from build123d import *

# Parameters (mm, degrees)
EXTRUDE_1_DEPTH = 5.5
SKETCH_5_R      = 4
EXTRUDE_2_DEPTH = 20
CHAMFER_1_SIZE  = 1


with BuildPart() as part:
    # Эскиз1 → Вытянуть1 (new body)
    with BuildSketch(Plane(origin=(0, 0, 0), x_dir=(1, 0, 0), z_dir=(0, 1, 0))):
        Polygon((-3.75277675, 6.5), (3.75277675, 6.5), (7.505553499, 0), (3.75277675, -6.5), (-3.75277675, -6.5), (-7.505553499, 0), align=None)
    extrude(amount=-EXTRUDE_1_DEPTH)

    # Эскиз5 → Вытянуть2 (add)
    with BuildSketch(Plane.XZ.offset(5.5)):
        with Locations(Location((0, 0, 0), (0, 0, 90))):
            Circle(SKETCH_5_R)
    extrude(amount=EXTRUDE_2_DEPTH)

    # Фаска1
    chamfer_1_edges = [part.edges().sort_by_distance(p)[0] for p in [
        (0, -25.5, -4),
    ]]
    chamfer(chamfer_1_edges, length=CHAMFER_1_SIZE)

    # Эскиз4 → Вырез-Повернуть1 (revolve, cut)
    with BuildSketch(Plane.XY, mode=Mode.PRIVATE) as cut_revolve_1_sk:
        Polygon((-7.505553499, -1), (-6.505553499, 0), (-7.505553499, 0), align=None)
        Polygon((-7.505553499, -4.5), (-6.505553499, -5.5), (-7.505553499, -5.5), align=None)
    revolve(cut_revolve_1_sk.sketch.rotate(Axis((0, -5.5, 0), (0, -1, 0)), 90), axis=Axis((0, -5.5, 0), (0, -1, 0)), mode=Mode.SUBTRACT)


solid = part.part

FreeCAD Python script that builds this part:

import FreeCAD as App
import Part
import Sketcher
Q = App.Units.Quantity


def edges_at(feature, points):
    """Names of the edges that pass closest to the given points."""
    edges = feature.Shape.Edges
    near = lambda p: min(range(len(edges)), key=lambda i: edges[i].distToShape(Part.Vertex(*p))[0])
    return sorted({f"Edge{near(p) + 1}" for p in points})

doc = App.newDocument("Part")
body = doc.addObject("PartDesign::Body", "Body")

sketch1 = body.newObject("Sketcher::SketchObject", "Sketch")
sketch1.AttachmentSupport = (doc.getObject("XZ_Plane"), [""])
sketch1.MapMode = "FlatFace"
sketch1.addGeometry(Part.LineSegment(App.Vector(3.752777, -6.5, 0), App.Vector(-3.752777, -6.5, 0)), False)
sketch1.addGeometry(Part.LineSegment(App.Vector(-3.752777, -6.5, 0), App.Vector(-7.505553, 0, 0)), False)
sketch1.addGeometry(Part.LineSegment(App.Vector(-7.505553, 0, 0), App.Vector(-3.752777, 6.5, 0)), False)
sketch1.addGeometry(Part.LineSegment(App.Vector(-3.752777, 6.5, 0), App.Vector(3.752777, 6.5, 0)), False)
sketch1.addGeometry(Part.LineSegment(App.Vector(3.752777, 6.5, 0), App.Vector(7.505553, 0, 0)), False)
sketch1.addGeometry(Part.LineSegment(App.Vector(7.505553, 0, 0), App.Vector(3.752777, -6.5, 0)), False)
sketch1.addConstraint(Sketcher.Constraint("Coincident", 0, 2, 1, 1))
sketch1.addConstraint(Sketcher.Constraint("Coincident", 1, 2, 2, 1))
sketch1.addConstraint(Sketcher.Constraint("Coincident", 2, 2, 3, 1))
sketch1.addConstraint(Sketcher.Constraint("Coincident", 3, 2, 4, 1))
sketch1.addConstraint(Sketcher.Constraint("Coincident", 4, 2, 5, 1))
sketch1.addConstraint(Sketcher.Constraint("Coincident", 5, 2, 0, 1))
sketch1.addConstraint(Sketcher.Constraint("Horizontal", 0))
sketch1.addConstraint(Sketcher.Constraint("Horizontal", 3))
sketch1.addConstraint(Sketcher.Constraint("Symmetric", 0, 2, 3, 2, -1, 1))
sketch1.addConstraint(Sketcher.Constraint("Symmetric", 1, 2, 4, 2, -1, 1))
sketch1.addConstraint(Sketcher.Constraint("PointOnObject", 1, 2, -1))
sketch1.addConstraint(Sketcher.Constraint("Parallel", 2, 5))
sketch1.addConstraint(Sketcher.Constraint("Vertical", 0, 2, 2, 2))
sketch1.addConstraint(Sketcher.Constraint("Angle", 1, Q("120 deg")))
sketch1.addConstraint(Sketcher.Constraint("DistanceY", 0, 2, 2, 2, Q("13 mm")))
sketch1.addConstraint(Sketcher.Constraint("DistanceX", 0, 2, 0, 1, Q("7.505554 mm")))
pad1 = body.newObject("PartDesign::Pad", "Pad")
pad1.Profile = sketch1
pad1.Length = 5.5

sketch2 = body.newObject("Sketcher::SketchObject", "Sketch001")
sketch2.AttachmentSupport = (doc.getObject("XZ_Plane"), [""])
sketch2.MapMode = "FlatFace"
sketch2.AttachmentOffset = App.Placement(App.Vector(0, 0, 5.5), App.Rotation())
sketch2.addGeometry(Part.Circle(App.Vector(0, 0, 0), App.Vector(0, 0, 1), 4), False)
sketch2.addConstraint(Sketcher.Constraint("Coincident", 0, 3, -1, 1))
sketch2.addConstraint(Sketcher.Constraint("Diameter", 0, Q("8 mm")))
pad2 = body.newObject("PartDesign::Pad", "Pad001")
pad2.Profile = sketch2
pad2.Length = 20
doc.recompute()

chamfer = body.newObject("PartDesign::Chamfer", "Chamfer")
chamfer.Base = (pad2, edges_at(pad2, [(0, -25.5, -4)]))
chamfer.Size = 1

sketch3 = body.newObject("Sketcher::SketchObject", "Sketch002")
sketch3.AttachmentSupport = (doc.getObject("XY_Plane"), [""])
sketch3.MapMode = "FlatFace"
sketch3.addGeometry(Part.LineSegment(App.Vector(-7.505553, -1, 0), App.Vector(-6.505553, 0, 0)), False)
sketch3.addGeometry(Part.LineSegment(App.Vector(-6.505553, 0, 0), App.Vector(-7.505553, 0, 0)), False)
sketch3.addGeometry(Part.LineSegment(App.Vector(-7.505553, 0, 0), App.Vector(-7.505553, -1, 0)), False)
sketch3.addGeometry(Part.LineSegment(App.Vector(-6.505553, -5.5, 0), App.Vector(-7.505553, -4.5, 0)), False)
sketch3.addGeometry(Part.LineSegment(App.Vector(-7.505553, -4.5, 0), App.Vector(-7.505553, -5.5, 0)), False)
sketch3.addGeometry(Part.LineSegment(App.Vector(-7.505553, -5.5, 0), App.Vector(-6.505553, -5.5, 0)), False)
sketch3.addConstraint(Sketcher.Constraint("Coincident", 0, 2, 1, 1))
sketch3.addConstraint(Sketcher.Constraint("Coincident", 1, 2, 2, 1))
sketch3.addConstraint(Sketcher.Constraint("Coincident", 2, 2, 0, 1))
sketch3.addConstraint(Sketcher.Constraint("Coincident", 3, 2, 4, 1))
sketch3.addConstraint(Sketcher.Constraint("Coincident", 4, 2, 5, 1))
sketch3.addConstraint(Sketcher.Constraint("Coincident", 5, 2, 3, 1))
sketch3.addConstraint(Sketcher.Constraint("Horizontal", 1))
sketch3.addConstraint(Sketcher.Constraint("Vertical", 2))
sketch3.addConstraint(Sketcher.Constraint("Vertical", 4))
sketch3.addConstraint(Sketcher.Constraint("Horizontal", 5))
sketch3.addConstraint(Sketcher.Constraint("PointOnObject", 0, 2, -1))
sketch3.addConstraint(Sketcher.Constraint("Perpendicular", 0, 3))
sketch3.addConstraint(Sketcher.Constraint("Vertical", 2, 2, 3, 2))
sketch3.addConstraint(Sketcher.Constraint("Vertical", 0, 2, 5, 2))
sketch3.addConstraint(Sketcher.Constraint("Equal", 5, 2))
sketch3.addConstraint(Sketcher.Constraint("DistanceX", 1, 2, 1, 1, Q("1 mm")))
sketch3.addConstraint(Sketcher.Constraint("DistanceY", 3, 2, -1, 1, Q("4.5 mm")))
sketch3.addConstraint(Sketcher.Constraint("DistanceX", 0, 2, -1, 1, Q("6.505553 mm")))
groove = body.newObject("PartDesign::Groove", "Groove")
groove.Profile = sketch3
groove.ReferenceAxis = (sketch3, ["V_Axis"])
groove.Angle = 360

doc.recompute()
